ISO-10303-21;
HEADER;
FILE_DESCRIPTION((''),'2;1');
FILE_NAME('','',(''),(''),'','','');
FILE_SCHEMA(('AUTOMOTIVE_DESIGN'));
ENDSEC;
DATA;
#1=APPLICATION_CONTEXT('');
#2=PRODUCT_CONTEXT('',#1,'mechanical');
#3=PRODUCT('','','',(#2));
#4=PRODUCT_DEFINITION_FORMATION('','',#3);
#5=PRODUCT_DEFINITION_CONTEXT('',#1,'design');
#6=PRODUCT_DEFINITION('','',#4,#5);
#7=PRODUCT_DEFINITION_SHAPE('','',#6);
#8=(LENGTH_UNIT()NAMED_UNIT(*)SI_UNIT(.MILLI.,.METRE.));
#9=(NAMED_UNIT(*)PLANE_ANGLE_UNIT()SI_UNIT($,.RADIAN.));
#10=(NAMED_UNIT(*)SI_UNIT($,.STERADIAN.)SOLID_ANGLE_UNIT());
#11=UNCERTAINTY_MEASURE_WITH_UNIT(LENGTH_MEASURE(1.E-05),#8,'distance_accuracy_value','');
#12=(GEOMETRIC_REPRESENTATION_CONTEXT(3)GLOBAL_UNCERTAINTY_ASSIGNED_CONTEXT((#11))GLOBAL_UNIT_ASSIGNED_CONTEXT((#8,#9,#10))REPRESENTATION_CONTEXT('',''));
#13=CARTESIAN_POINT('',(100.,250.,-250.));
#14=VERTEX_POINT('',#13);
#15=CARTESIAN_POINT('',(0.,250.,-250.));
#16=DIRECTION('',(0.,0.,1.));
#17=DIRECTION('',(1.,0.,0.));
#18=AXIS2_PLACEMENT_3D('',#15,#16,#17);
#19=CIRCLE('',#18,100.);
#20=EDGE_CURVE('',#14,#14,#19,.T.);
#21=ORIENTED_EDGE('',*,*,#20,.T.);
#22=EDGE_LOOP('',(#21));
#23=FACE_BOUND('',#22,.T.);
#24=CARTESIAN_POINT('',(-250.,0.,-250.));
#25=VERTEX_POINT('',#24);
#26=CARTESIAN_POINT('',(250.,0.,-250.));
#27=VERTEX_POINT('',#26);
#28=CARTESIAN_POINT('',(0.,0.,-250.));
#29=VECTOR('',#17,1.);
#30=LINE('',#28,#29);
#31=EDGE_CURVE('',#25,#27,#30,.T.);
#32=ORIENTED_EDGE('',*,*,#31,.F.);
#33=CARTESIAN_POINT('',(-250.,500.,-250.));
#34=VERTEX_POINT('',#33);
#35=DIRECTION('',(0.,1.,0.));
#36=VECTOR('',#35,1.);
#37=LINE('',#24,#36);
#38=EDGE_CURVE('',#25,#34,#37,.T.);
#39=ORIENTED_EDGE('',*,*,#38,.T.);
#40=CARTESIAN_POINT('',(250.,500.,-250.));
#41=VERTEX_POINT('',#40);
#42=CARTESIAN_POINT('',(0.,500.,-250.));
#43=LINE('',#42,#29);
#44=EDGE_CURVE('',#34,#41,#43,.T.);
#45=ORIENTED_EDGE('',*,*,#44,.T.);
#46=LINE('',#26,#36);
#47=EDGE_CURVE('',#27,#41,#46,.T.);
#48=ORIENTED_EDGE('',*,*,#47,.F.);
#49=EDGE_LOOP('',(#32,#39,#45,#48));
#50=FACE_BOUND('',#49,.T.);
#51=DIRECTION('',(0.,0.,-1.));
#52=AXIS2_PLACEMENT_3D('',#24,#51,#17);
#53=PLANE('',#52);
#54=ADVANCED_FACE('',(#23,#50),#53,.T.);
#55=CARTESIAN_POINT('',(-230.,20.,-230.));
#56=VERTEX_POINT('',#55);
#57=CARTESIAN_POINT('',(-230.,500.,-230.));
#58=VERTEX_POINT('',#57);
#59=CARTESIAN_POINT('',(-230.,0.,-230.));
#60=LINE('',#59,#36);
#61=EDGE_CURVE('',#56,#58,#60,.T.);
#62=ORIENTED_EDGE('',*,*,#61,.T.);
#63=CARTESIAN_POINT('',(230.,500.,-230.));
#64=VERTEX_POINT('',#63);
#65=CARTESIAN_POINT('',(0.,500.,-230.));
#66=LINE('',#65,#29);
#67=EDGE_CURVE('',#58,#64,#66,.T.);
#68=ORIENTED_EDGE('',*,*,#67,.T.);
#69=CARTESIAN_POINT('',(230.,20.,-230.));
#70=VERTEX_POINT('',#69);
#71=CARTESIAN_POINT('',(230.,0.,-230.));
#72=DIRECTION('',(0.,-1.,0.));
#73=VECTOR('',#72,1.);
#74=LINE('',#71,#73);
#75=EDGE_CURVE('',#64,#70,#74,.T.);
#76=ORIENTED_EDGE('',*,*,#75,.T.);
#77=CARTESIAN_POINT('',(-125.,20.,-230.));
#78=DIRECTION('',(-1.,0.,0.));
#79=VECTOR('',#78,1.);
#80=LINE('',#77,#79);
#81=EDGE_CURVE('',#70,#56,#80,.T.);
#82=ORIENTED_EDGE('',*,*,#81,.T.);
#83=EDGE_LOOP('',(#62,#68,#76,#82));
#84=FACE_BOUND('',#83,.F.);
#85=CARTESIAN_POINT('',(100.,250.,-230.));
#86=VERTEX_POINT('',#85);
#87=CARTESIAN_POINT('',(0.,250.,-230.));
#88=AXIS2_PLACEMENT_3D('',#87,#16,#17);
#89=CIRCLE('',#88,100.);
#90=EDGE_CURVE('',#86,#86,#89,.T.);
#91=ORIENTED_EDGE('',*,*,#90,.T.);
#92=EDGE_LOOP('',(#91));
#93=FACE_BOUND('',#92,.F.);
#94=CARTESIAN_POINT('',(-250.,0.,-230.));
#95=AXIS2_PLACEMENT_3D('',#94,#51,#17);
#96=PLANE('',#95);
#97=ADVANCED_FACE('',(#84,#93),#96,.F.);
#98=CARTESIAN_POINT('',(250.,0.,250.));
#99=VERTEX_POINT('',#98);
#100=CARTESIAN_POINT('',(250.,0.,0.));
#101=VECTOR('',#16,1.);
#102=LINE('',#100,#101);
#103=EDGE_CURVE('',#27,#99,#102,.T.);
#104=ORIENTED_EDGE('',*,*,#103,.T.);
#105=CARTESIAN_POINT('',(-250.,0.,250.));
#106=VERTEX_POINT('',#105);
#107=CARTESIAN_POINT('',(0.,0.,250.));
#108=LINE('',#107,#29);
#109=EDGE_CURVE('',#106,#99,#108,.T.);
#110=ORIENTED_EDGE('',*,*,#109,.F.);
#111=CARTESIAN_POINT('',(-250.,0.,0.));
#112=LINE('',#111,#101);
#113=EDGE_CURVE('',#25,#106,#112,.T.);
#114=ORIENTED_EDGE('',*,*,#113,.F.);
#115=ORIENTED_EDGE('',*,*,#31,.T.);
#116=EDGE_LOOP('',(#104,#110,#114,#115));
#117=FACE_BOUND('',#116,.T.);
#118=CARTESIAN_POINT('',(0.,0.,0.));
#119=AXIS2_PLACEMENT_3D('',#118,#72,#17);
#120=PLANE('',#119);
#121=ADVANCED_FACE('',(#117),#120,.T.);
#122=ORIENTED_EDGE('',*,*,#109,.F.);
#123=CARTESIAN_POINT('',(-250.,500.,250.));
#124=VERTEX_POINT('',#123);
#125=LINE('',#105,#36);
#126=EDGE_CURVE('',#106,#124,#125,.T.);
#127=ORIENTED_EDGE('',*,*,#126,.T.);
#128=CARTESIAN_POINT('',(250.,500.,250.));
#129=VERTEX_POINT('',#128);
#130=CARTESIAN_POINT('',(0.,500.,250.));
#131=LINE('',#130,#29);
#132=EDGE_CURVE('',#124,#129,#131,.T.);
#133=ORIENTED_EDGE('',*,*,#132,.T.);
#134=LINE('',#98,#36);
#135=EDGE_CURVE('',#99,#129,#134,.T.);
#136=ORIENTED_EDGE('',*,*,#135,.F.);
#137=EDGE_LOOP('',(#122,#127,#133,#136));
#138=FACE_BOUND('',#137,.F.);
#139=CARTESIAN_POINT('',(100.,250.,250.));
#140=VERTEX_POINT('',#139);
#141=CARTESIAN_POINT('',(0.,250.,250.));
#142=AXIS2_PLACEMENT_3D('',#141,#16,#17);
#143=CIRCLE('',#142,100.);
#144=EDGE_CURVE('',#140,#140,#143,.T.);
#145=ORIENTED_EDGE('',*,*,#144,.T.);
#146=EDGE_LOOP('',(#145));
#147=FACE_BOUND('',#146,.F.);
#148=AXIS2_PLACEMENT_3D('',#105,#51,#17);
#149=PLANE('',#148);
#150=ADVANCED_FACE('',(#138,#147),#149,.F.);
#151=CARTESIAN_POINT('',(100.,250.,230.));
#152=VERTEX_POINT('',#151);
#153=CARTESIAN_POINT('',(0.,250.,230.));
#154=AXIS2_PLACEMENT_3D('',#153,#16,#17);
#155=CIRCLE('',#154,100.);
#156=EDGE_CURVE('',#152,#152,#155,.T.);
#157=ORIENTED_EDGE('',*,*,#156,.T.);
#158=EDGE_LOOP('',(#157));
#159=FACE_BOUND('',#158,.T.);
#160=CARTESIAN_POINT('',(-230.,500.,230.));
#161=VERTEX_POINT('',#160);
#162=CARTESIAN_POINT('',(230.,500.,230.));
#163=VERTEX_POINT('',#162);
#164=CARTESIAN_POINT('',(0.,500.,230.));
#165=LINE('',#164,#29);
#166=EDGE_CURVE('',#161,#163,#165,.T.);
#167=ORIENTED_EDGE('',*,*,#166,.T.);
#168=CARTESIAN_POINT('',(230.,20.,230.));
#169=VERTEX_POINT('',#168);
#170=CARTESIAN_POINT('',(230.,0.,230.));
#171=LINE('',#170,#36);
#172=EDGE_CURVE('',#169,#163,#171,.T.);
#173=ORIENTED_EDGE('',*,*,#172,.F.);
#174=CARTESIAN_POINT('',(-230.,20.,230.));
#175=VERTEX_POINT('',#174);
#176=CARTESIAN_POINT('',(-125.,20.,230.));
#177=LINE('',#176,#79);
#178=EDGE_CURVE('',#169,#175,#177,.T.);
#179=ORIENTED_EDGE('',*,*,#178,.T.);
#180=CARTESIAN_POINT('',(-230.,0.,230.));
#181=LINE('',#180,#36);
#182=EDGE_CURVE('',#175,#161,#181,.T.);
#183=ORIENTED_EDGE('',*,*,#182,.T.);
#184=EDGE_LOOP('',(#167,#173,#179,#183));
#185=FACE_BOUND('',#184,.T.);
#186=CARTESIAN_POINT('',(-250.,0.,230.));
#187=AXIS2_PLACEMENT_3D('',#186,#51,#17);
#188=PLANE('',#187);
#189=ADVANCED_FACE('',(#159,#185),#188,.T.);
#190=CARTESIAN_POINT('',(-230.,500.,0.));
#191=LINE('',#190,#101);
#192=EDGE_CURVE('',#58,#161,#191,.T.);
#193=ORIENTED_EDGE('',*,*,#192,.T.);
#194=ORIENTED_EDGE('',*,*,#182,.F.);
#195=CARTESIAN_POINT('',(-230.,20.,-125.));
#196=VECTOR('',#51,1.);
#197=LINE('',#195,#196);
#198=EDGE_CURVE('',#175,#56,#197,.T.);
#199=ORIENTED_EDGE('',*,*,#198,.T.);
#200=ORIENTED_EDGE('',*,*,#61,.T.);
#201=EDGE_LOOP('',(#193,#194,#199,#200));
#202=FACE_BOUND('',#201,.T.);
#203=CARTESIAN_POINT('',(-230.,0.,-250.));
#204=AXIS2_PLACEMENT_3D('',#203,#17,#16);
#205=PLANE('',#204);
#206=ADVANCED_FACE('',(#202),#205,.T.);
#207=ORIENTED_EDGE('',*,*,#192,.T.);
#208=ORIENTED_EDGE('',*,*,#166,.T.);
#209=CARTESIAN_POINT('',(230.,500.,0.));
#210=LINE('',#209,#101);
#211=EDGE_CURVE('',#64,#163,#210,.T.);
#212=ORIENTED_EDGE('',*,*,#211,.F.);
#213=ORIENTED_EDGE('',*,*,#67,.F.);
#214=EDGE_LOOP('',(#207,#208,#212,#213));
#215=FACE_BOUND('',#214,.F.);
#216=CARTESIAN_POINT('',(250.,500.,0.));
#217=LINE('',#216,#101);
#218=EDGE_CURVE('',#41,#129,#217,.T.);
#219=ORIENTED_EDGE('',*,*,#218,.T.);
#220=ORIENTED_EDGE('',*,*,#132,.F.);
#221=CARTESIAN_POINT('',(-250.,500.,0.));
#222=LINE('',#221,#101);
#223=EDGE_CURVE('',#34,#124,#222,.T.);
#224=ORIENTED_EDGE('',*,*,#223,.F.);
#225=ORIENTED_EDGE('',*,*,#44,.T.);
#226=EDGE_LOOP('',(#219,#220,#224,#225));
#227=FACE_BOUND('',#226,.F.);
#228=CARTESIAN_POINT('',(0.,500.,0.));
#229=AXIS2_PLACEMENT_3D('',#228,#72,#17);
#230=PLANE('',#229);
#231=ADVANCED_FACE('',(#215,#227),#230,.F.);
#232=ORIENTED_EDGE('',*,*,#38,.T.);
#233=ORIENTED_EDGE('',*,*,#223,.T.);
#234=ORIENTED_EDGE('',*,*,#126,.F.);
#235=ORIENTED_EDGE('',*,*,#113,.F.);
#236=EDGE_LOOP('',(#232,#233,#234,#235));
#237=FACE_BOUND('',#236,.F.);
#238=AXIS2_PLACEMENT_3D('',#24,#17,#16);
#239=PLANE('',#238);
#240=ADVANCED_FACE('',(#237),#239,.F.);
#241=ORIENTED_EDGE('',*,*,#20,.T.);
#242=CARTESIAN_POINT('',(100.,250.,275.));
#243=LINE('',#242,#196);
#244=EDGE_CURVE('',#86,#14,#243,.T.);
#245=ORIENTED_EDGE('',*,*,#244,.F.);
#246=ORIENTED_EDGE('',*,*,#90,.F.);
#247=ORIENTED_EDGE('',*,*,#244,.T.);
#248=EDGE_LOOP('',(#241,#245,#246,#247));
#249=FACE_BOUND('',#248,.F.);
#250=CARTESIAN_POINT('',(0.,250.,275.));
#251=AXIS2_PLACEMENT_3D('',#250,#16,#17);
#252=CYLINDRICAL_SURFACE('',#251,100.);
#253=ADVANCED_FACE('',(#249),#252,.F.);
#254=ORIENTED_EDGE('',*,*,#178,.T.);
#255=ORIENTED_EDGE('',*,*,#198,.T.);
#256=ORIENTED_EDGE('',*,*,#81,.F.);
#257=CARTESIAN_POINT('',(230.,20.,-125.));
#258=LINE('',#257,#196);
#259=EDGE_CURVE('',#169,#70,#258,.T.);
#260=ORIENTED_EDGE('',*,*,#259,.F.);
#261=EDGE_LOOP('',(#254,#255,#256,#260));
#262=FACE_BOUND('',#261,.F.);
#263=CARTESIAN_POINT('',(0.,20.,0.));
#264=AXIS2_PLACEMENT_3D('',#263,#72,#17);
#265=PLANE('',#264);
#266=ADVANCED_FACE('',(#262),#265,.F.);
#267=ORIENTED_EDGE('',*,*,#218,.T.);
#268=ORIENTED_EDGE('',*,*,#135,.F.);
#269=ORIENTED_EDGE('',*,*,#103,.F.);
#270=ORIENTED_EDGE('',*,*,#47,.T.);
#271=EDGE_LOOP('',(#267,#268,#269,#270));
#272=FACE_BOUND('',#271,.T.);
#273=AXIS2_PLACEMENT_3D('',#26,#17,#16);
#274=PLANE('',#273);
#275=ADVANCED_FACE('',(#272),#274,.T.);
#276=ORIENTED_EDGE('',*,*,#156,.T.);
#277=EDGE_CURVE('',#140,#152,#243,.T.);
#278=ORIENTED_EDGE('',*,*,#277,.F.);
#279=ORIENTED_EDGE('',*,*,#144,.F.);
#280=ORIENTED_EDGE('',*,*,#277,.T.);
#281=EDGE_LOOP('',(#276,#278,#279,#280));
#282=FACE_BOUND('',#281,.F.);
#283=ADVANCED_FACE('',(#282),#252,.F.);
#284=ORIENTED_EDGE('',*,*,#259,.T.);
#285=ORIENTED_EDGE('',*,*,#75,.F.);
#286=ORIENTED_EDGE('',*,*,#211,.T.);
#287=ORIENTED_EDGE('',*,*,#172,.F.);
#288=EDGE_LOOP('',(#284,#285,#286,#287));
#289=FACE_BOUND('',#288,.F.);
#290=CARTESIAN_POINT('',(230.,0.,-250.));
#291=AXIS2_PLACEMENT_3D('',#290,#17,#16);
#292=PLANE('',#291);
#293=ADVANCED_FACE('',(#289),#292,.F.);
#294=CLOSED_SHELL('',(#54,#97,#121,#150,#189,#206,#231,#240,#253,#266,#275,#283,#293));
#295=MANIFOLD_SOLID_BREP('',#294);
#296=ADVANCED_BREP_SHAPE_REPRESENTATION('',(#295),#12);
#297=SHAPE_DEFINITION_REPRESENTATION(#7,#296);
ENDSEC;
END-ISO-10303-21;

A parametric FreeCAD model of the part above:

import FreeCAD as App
import Part
import Sketcher

V = App.Vector


def faces_at(feature, points):
    """Names of the faces that lie closest to the given points."""
    faces = feature.Shape.Faces
    near = lambda p: min(range(len(faces)), key=lambda i: faces[i].distToShape(Part.Vertex(*p))[0])
    return sorted({f"Face{near(p) + 1}" for p in points})


def add_polygon(sketch, points):
    """Adds a closed chain of lines whose ends are joined by coincident constraints."""
    first, n = sketch.GeometryCount, len(points)
    for a, b in zip(points, points[1:] + points[:1]):
        sketch.addGeometry(Part.LineSegment(App.Vector(*a, 0), App.Vector(*b, 0)), False)
    for i in range(n):
        sketch.addConstraint(Sketcher.Constraint("Coincident", first + i, 2, first + (i + 1) % n, 1))

doc = App.newDocument("Part")
body = doc.addObject("PartDesign::Body", "Body")

# Sketch on XZ plane
sketch1 = body.newObject("Sketcher::SketchObject", "Sketch")
sketch1.AttachmentSupport = (doc.getObject("XZ_Plane"), [""])
sketch1.MapMode = "FlatFace"
add_polygon(sketch1, [(-250, 250), (-250, -250), (250, -250), (250, 250)])  # lines 0-3
sketch1.addConstraint([
    Sketcher.Constraint("Vertical", 0),
    Sketcher.Constraint("Horizontal", 1),
    Sketcher.Constraint("Vertical", 2),
    Sketcher.Constraint("Horizontal", 3),
    Sketcher.Constraint("Symmetric", 0, 2, 2, 2, -1, 1),
    Sketcher.Constraint("Equal", 3, 0),
    Sketcher.Constraint("DistanceX", 1, 1, 1, 2, 500.0),
])
pad1 = body.newObject("PartDesign::Pad", "Pad")
pad1.Profile = sketch1
pad1.Length = 500
pad1.Reversed = True
doc.recompute()

thickness = body.newObject("PartDesign::Thickness", "Thickness")
thickness.Base = (pad1, faces_at(pad1, [(0, 500, 0)]))
thickness.Value = 20
thickness.Reversed = True
thickness.Join = "Arc"

# Sketch on XY plane
sketch2 = body.newObject("Sketcher::SketchObject", "Sketch001")
sketch2.AttachmentSupport = (doc.getObject("XY_Plane"), [""])
sketch2.MapMode = "FlatFace"
sketch2.AttachmentOffset = App.Placement(V(0, 0, 250), App.Rotation())
sketch2.addGeometry(Part.Circle(V(0, 250, 0), V(0, 0, 1), 100), False)
sketch2.addConstraint([
    Sketcher.Constraint("PointOnObject", 0, 3, -2),
    Sketcher.Constraint("Diameter", 0, 200.0),
    Sketcher.Constraint("DistanceY", -1, 1, 0, 3, 250.0),
])
pad2 = body.newObject("PartDesign::Pad", "Pad001")
pad2.Profile = sketch2
pad2.Length = 25

# Sketch on XY plane
sketch3 = body.newObject("Sketcher::SketchObject", "Sketch002")
sketch3.AttachmentSupport = (doc.getObject("XY_Plane"), [""])
sketch3.MapMode = "FlatFace"
sketch3.AttachmentOffset = App.Placement(V(0, 0, 275), App.Rotation())
sketch3.addGeometry(Part.Circle(V(0, 250, 0), V(0, 0, 1), 100), False)
sketch3.addConstraint([
    Sketcher.Constraint("PointOnObject", 0, 3, -2),
    Sketcher.Constraint("Diameter", 0, 200.0),
    Sketcher.Constraint("DistanceY", -1, 1, 0, 3, 250.0),
])
pocket1 = body.newObject("PartDesign::Pocket", "Pocket")
pocket1.Profile = sketch3
pocket1.Type = "ThroughAll"

doc.recompute()
